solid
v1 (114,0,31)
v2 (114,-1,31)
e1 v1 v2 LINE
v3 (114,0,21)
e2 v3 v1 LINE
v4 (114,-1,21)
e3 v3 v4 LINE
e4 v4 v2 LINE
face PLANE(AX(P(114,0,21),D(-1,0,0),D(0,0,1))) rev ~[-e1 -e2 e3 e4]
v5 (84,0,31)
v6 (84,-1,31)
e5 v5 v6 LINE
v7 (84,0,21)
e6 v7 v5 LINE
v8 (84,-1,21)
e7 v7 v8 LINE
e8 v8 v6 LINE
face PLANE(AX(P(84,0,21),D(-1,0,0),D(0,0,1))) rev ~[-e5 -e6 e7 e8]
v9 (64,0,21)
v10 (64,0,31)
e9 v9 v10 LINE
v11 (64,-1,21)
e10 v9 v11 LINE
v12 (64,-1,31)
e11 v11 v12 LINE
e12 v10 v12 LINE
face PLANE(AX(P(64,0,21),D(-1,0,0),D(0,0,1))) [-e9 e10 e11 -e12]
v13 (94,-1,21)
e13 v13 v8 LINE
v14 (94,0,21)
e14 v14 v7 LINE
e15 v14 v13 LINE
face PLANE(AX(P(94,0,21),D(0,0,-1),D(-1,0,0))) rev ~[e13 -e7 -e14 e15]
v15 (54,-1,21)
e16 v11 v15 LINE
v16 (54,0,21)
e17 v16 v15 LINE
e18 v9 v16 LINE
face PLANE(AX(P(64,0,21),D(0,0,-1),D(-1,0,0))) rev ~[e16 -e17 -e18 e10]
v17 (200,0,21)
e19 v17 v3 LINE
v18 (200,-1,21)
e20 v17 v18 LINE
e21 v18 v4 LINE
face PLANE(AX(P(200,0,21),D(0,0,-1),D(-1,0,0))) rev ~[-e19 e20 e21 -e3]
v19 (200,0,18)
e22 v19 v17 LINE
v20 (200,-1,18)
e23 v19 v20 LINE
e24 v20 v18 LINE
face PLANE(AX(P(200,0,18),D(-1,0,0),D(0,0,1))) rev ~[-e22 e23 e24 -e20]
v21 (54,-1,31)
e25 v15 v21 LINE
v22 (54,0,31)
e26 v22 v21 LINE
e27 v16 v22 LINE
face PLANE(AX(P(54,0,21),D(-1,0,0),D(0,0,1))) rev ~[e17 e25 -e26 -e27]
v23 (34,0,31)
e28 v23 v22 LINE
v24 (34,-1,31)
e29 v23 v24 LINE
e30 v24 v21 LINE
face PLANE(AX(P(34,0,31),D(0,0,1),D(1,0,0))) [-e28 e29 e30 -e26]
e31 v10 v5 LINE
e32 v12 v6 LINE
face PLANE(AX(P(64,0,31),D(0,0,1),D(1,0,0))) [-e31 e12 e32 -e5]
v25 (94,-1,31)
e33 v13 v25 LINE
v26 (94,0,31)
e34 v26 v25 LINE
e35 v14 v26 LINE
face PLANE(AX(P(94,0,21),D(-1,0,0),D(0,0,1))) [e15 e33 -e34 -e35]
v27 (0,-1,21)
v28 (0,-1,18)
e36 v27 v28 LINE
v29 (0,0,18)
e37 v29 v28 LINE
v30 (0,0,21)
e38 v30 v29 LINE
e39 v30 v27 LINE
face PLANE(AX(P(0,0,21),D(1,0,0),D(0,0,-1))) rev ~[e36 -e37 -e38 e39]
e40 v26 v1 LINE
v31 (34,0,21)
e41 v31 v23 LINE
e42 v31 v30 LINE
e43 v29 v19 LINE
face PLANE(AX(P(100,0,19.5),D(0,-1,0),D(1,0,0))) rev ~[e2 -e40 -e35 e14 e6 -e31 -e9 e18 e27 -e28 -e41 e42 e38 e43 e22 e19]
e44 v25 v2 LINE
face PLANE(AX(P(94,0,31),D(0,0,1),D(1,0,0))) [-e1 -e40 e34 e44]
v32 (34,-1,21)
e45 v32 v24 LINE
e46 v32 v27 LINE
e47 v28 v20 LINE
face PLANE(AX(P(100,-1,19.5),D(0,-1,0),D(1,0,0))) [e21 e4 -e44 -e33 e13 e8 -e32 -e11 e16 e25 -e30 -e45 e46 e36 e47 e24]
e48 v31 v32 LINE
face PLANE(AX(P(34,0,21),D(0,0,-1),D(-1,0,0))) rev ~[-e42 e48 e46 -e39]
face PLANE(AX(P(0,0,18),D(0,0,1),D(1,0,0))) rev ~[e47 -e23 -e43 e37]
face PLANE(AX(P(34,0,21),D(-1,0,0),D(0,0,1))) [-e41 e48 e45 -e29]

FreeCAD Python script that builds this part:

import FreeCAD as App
import Part
import Sketcher
from FreeCAD import Vector
Q = App.Units.Quantity


def add_polygon(sketch, points):
    """Adds a closed chain of lines whose ends are joined by coincident constraints."""
    first, n = sketch.GeometryCount, len(points)
    for a, b in zip(points, points[1:] + points[:1]):
        sketch.addGeometry(Part.LineSegment(App.Vector(*a, 0), App.Vector(*b, 0)), False)
    for i in range(n):
        sketch.addConstraint(Sketcher.Constraint("Coincident", first + i, 2, first + (i + 1) % n, 1))

doc = App.newDocument("Part")
body = doc.addObject("PartDesign::Body", "Body")

# Sketch on XZ plane
sketch1 = body.newObject("Sketcher::SketchObject", "Sketch")
sketch1.AttachmentSupport = (doc.getObject("XZ_Plane"), [""])
sketch1.MapMode = "FlatFace"
add_polygon(sketch1, [(0, 21), (0, 18), (200, 18), (200, 21), (114, 21), (114, 31), (94, 31), (94, 21), (84, 21), (84, 31), (64, 31), (64, 21), (54, 21), (54, 31), (34, 31), (34, 21)])  # lines 0-15
sketch1.addConstraint([
    Sketcher.Constraint("Vertical", 0),
    Sketcher.Constraint("Horizontal", 1),
    Sketcher.Constraint("Vertical", 2),
    Sketcher.Constraint("Horizontal", 3),
    Sketcher.Constraint("Vertical", 4),
    Sketcher.Constraint("Horizontal", 5),
    Sketcher.Constraint("Vertical", 6),
    Sketcher.Constraint("Horizontal", 7),
    Sketcher.Constraint("Vertical", 8),
    Sketcher.Constraint("Horizontal", 9),
    Sketcher.Constraint("Vertical", 10),
    Sketcher.Constraint("Horizontal", 11),
    Sketcher.Constraint("Vertical", 12),
    Sketcher.Constraint("Horizontal", 13),
    Sketcher.Constraint("Vertical", 14),
    Sketcher.Constraint("Horizontal", 15),
    Sketcher.Constraint("PointOnObject", 0, 2, -2),
    Sketcher.Constraint("Horizontal", 3, 2, 6, 2),
    Sketcher.Constraint("Horizontal", 5, 2, 8, 2),
    Sketcher.Constraint("Horizontal", 7, 2, 10, 2),
    Sketcher.Constraint("Horizontal", 9, 2, 12, 2),
    Sketcher.Constraint("Horizontal", 11, 2, 14, 2),
    Sketcher.Constraint("Equal", 5, 9),
    Sketcher.Constraint("Equal", 7, 11),
    Sketcher.Constraint("Equal", 9, 13),
    Sketcher.Constraint("Equal", 11, 4),
    Sketcher.Constraint("DistanceX", 1, 1, 1, 2, Q("200 mm")),
    Sketcher.Constraint("DistanceX", 3, 2, 3, 1, Q("86 mm")),
    Sketcher.Constraint("DistanceX", 5, 2, 5, 1, Q("20 mm")),
    Sketcher.Constraint("DistanceX", 7, 2, 7, 1, Q("10 mm")),
    Sketcher.Constraint("DistanceY", 0, 2, 0, 1, Q("3 mm")),
    Sketcher.Constraint("DistanceY", -1, 1, 0, 2, Q("18 mm")),
])
pad1 = body.newObject("PartDesign::Pad", "Pad")
pad1.Profile = sketch1
pad1.Length = 1

doc.recompute()
